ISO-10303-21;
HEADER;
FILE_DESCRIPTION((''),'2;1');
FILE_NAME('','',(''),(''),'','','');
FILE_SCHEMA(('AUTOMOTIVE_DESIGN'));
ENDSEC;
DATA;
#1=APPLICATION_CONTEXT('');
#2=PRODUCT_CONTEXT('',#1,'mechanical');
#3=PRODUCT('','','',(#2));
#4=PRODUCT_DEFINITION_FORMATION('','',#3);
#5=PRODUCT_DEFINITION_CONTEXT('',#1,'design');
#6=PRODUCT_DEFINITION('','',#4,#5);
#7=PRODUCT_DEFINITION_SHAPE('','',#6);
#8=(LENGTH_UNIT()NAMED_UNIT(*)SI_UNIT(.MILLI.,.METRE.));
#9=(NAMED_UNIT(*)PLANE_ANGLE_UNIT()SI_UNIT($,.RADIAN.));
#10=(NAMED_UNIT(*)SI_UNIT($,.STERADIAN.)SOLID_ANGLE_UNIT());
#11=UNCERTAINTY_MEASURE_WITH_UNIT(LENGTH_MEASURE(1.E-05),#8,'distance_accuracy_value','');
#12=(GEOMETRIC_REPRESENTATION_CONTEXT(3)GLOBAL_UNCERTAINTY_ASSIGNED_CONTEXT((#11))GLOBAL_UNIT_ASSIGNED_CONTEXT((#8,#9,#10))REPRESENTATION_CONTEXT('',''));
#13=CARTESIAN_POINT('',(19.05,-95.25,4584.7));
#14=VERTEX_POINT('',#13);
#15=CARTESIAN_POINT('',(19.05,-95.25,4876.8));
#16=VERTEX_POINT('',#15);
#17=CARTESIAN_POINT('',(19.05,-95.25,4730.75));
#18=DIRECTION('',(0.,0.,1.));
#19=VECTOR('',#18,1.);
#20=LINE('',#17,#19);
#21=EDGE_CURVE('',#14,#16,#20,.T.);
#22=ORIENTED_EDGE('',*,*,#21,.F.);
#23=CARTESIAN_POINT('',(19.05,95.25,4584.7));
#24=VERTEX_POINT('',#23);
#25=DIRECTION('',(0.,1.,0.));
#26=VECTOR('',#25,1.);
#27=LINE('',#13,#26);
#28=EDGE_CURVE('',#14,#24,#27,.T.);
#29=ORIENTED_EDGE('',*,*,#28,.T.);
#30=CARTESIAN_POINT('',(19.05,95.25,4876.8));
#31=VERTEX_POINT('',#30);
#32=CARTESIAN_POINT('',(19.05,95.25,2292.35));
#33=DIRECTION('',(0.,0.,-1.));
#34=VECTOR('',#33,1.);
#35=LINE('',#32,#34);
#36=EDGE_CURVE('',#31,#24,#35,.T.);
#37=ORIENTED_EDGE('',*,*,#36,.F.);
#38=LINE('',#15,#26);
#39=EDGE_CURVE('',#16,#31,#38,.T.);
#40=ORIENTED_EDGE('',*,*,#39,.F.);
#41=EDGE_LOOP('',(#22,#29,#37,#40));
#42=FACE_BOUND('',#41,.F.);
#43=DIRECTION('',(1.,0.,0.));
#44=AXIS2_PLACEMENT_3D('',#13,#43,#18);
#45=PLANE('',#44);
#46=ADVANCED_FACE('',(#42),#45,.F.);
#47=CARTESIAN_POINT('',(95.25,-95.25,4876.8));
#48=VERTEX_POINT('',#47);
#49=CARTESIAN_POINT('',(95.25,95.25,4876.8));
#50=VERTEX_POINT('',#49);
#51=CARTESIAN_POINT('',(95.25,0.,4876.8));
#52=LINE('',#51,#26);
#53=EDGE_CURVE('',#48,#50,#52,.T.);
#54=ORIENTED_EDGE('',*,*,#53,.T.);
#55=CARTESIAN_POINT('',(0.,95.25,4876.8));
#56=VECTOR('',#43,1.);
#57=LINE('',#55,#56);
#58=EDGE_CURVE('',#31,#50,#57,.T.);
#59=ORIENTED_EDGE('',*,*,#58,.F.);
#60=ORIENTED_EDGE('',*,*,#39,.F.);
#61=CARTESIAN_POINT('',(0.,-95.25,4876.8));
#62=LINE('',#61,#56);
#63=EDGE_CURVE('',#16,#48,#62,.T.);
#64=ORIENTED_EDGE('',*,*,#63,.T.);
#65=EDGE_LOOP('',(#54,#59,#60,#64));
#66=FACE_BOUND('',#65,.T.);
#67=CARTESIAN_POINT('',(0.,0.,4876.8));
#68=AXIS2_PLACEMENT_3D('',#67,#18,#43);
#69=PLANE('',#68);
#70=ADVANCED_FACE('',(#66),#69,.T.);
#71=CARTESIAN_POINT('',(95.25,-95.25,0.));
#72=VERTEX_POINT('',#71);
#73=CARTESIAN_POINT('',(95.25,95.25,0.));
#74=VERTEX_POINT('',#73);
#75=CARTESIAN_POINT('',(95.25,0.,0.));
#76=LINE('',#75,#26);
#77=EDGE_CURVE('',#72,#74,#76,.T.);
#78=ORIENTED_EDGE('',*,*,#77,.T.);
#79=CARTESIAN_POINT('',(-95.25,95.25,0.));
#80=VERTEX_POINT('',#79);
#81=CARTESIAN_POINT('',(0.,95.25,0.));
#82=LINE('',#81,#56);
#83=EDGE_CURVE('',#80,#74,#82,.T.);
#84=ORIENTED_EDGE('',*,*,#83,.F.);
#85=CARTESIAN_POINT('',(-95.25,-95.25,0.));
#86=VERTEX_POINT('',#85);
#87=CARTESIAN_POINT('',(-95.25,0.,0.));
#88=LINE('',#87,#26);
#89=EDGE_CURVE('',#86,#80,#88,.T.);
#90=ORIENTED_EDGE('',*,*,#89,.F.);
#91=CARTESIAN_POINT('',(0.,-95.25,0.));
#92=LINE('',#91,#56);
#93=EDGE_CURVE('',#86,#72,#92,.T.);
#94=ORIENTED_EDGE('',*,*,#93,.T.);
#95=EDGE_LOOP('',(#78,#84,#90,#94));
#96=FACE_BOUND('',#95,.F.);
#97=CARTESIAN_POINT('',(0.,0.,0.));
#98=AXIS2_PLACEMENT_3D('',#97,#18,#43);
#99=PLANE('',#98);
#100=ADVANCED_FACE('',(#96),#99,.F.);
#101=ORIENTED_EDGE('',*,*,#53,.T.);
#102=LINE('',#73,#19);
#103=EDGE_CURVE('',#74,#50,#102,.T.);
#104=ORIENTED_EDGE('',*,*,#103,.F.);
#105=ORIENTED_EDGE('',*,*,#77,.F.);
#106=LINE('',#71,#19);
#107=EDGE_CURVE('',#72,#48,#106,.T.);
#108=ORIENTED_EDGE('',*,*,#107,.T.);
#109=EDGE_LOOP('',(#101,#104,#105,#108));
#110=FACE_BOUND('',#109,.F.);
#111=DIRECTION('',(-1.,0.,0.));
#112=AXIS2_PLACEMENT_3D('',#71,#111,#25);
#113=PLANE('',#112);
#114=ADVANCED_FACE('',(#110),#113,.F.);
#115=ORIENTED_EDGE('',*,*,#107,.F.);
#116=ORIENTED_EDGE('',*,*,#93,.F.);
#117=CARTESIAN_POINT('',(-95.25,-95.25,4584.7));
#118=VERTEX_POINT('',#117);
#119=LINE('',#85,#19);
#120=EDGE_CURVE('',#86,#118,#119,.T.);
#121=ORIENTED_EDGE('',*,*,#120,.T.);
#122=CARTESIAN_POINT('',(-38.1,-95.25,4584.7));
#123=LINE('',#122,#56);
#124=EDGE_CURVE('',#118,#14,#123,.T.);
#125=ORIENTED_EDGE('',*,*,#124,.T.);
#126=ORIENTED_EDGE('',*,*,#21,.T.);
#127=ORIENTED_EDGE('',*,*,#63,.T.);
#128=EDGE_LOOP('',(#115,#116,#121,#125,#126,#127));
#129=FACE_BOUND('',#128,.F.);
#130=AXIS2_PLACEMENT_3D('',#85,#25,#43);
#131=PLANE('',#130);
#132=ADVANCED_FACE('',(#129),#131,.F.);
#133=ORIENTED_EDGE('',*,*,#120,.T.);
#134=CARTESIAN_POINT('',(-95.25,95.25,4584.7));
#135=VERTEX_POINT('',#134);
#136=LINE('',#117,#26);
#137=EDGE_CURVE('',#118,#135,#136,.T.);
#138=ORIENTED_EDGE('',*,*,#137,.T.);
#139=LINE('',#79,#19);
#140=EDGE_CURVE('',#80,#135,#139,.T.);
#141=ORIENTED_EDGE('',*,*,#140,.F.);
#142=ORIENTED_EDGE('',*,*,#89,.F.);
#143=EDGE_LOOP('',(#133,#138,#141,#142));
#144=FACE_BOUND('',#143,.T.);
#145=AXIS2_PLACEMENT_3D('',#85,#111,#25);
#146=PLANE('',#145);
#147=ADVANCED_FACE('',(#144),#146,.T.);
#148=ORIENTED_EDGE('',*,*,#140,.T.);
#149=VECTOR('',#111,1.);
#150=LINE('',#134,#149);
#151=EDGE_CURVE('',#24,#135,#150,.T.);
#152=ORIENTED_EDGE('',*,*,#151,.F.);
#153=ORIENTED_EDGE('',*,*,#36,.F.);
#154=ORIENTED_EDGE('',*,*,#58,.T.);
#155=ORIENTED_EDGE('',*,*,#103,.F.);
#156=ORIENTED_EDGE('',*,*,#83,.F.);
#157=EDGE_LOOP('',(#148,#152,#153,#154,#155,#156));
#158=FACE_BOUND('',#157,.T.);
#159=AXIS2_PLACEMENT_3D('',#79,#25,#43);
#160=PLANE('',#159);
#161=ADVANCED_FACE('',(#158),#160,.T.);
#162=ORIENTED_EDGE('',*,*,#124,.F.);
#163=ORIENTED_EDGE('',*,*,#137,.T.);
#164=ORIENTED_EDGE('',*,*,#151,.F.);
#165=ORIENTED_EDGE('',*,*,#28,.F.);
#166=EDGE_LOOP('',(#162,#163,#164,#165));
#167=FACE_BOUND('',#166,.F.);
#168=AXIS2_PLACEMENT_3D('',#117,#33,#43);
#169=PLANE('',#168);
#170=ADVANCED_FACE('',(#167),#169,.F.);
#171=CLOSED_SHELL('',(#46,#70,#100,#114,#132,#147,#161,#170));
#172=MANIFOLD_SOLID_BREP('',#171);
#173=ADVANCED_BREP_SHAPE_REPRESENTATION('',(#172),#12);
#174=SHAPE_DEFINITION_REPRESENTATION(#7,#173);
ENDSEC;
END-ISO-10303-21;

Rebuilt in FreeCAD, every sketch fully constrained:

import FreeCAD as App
import Part
import Sketcher
Q = App.Units.Quantity

doc = App.newDocument("Part")
body = doc.addObject("PartDesign::Body", "Body")

# Sketch on XY plane
sketch1 = body.newObject("Sketcher::SketchObject", "Sketch")
sketch1.AttachmentSupport = (doc.getObject("XY_Plane"), [""])
sketch1.MapMode = "FlatFace"
sketch1.addGeometry(Part.LineSegment(App.Vector(-95, 95, 0), App.Vector(-95, -95, 0)), False)
sketch1.addGeometry(Part.LineSegment(App.Vector(-95, -95, 0), App.Vector(95, -95, 0)), False)
sketch1.addGeometry(Part.LineSegment(App.Vector(95, -95, 0), App.Vector(95, 95, 0)), False)
sketch1.addGeometry(Part.LineSegment(App.Vector(95, 95, 0), App.Vector(-95, 95, 0)), False)
sketch1.addConstraint(Sketcher.Constraint("Coincident", 0, 2, 1, 1))
sketch1.addConstraint(Sketcher.Constraint("Coincident", 1, 2, 2, 1))
sketch1.addConstraint(Sketcher.Constraint("Coincident", 2, 2, 3, 1))
sketch1.addConstraint(Sketcher.Constraint("Coincident", 3, 2, 0, 1))
sketch1.addConstraint(Sketcher.Constraint("Vertical", 0))
sketch1.addConstraint(Sketcher.Constraint("Horizontal", 1))
sketch1.addConstraint(Sketcher.Constraint("Vertical", 2))
sketch1.addConstraint(Sketcher.Constraint("Horizontal", 3))
sketch1.addConstraint(Sketcher.Constraint("Symmetric", 0, 2, 2, 2, -1, 1))
sketch1.addConstraint(Sketcher.Constraint("Equal", 3, 0))
sketch1.addConstraint(Sketcher.Constraint("DistanceX", 1, 1, 1, 2, Q("7.5 in")))
pad1 = body.newObject("PartDesign::Pad", "Pad")
pad1.Profile = sketch1
pad1.Length = Q("192 in")

# Sketch on XZ plane
sketch2 = body.newObject("Sketcher::SketchObject", "Sketch001")
sketch2.AttachmentSupport = (doc.getObject("XZ_Plane"), [""])
sketch2.MapMode = "FlatFace"
sketch2.AttachmentOffset = App.Placement(App.Vector(0, 0, 3.75 * 25.4), App.Rotation())
sketch2.addGeometry(Part.LineSegment(App.Vector(-95, 4877, 0), App.Vector(-95, 4585, 0)), False)
sketch2.addGeometry(Part.LineSegment(App.Vector(-95, 4585, 0), App.Vector(19, 4585, 0)), False)
sketch2.addGeometry(Part.LineSegment(App.Vector(19, 4585, 0), App.Vector(19, 4877, 0)), False)
sketch2.addGeometry(Part.LineSegment(App.Vector(19, 4877, 0), App.Vector(-95, 4877, 0)), False)
sketch2.addConstraint(Sketcher.Constraint("Coincident", 0, 2, 1, 1))
sketch2.addConstraint(Sketcher.Constraint("Coincident", 1, 2, 2, 1))
sketch2.addConstraint(Sketcher.Constraint("Coincident", 2, 2, 3, 1))
sketch2.addConstraint(Sketcher.Constraint("Coincident", 3, 2, 0, 1))
sketch2.addConstraint(Sketcher.Constraint("Vertical", 0))
sketch2.addConstraint(Sketcher.Constraint("Horizontal", 1))
sketch2.addConstraint(Sketcher.Constraint("Vertical", 2))
sketch2.addConstraint(Sketcher.Constraint("Horizontal", 3))
sketch2.addConstraint(Sketcher.Constraint("DistanceX", 1, 1, 1, 2, Q("4.5 in")))
sketch2.addConstraint(Sketcher.Constraint("DistanceY", 0, 2, 0, 1, Q("11.5 in")))
sketch2.addConstraint(Sketcher.Constraint("DistanceY", -1, 1, 2, 2, Q("192 in")))
sketch2.addConstraint(Sketcher.Constraint("DistanceX", 0, 2, -1, 1, Q("3.75 in")))
pocket1 = body.newObject("PartDesign::Pocket", "Pocket")
pocket1.Profile = sketch2
pocket1.Type = "ThroughAll"

doc.recompute()
